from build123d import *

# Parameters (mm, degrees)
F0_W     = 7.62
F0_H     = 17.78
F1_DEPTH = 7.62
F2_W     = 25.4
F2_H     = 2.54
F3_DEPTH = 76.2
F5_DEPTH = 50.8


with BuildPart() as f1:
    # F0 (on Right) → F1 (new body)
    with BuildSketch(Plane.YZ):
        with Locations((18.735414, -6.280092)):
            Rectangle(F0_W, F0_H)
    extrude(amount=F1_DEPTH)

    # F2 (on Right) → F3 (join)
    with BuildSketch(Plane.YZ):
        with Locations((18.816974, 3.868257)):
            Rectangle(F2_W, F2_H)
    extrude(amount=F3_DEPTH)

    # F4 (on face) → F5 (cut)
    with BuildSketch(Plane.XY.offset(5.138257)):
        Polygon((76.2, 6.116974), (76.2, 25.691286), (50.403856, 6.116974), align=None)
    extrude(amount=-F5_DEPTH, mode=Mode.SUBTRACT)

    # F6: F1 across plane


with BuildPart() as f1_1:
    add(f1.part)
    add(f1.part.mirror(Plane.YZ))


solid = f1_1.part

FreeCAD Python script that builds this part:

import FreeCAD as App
import Part
import Sketcher

V = App.Vector
Q = App.Units.Quantity

doc = App.newDocument("Part")
body = doc.addObject("PartDesign::Body", "Body")

# Sketch on YZ plane
sketch1 = body.newObject("Sketcher::SketchObject", "Sketch")
sketch1.AttachmentSupport = (doc.getObject("YZ_Plane"), [""])
sketch1.MapMode = "FlatFace"
sketch1.addGeometry(Part.LineSegment(V(15, 3, 0), V(15, -15, 0)), False)
sketch1.addGeometry(Part.LineSegment(V(15, -15, 0), V(23, -15, 0)), False)
sketch1.addGeometry(Part.LineSegment(V(23, -15, 0), V(23, 3, 0)), False)
sketch1.addGeometry(Part.LineSegment(V(23, 3, 0), V(15, 3, 0)), False)
sketch1.addConstraint(Sketcher.Constraint("Coincident", 0, 2, 1, 1))
sketch1.addConstraint(Sketcher.Constraint("Coincident", 1, 2, 2, 1))
sketch1.addConstraint(Sketcher.Constraint("Coincident", 2, 2, 3, 1))
sketch1.addConstraint(Sketcher.Constraint("Coincident", 3, 2, 0, 1))
sketch1.addConstraint(Sketcher.Constraint("Vertical", 0))
sketch1.addConstraint(Sketcher.Constraint("Horizontal", 1))
sketch1.addConstraint(Sketcher.Constraint("Vertical", 2))
sketch1.addConstraint(Sketcher.Constraint("Horizontal", 3))
sketch1.addConstraint(Sketcher.Constraint("DistanceX", 1, 1, 1, 2, Q("0.3 in")))
sketch1.addConstraint(Sketcher.Constraint("DistanceY", 0, 2, 0, 1, Q("0.7 in")))
sketch1.addConstraint(Sketcher.Constraint("DistanceX", -1, 1, 0, 2, Q("14.925414 mm")))
sketch1.addConstraint(Sketcher.Constraint("DistanceY", 0, 2, -1, 1, Q("15.170092 mm")))
pad1 = body.newObject("PartDesign::Pad", "Pad")
pad1.Profile = sketch1
pad1.Length = Q("0.3 in")

# Sketch on YZ plane
sketch2 = body.newObject("Sketcher::SketchObject", "Sketch001")
sketch2.AttachmentSupport = (doc.getObject("YZ_Plane"), [""])
sketch2.MapMode = "FlatFace"
sketch2.addGeometry(Part.LineSegment(V(6.1, 5.1, 0), V(6.1, 2.6, 0)), False)
sketch2.addGeometry(Part.LineSegment(V(6.1, 2.6, 0), V(31.5, 2.6, 0)), False)
sketch2.addGeometry(Part.LineSegment(V(31.5, 2.6, 0), V(31.5, 5.1, 0)), False)
sketch2.addGeometry(Part.LineSegment(V(31.5, 5.1, 0), V(6.1, 5.1, 0)), False)
sketch2.addConstraint(Sketcher.Constraint("Coincident", 0, 2, 1, 1))
sketch2.addConstraint(Sketcher.Constraint("Coincident", 1, 2, 2, 1))
sketch2.addConstraint(Sketcher.Constraint("Coincident", 2, 2, 3, 1))
sketch2.addConstraint(Sketcher.Constraint("Coincident", 3, 2, 0, 1))
sketch2.addConstraint(Sketcher.Constraint("Vertical", 0))
sketch2.addConstraint(Sketcher.Constraint("Horizontal", 1))
sketch2.addConstraint(Sketcher.Constraint("Vertical", 2))
sketch2.addConstraint(Sketcher.Constraint("Horizontal", 3))
sketch2.addConstraint(Sketcher.Constraint("DistanceX", 1, 1, 1, 2, Q("1 in")))
sketch2.addConstraint(Sketcher.Constraint("DistanceY", 0, 2, 0, 1, Q("0.1 in")))
sketch2.addConstraint(Sketcher.Constraint("DistanceX", -1, 1, 0, 2, Q("6.116974 mm")))
sketch2.addConstraint(Sketcher.Constraint("DistanceY", -1, 1, 0, 2, Q("2.598257 mm")))
pad2 = body.newObject("PartDesign::Pad", "Pad001")
pad2.Profile = sketch2
pad2.Length = Q("3 in")

# Sketch on XY plane
sketch3 = body.newObject("Sketcher::SketchObject", "Sketch002")
sketch3.AttachmentSupport = (doc.getObject("XY_Plane"), [""])
sketch3.MapMode = "FlatFace"
sketch3.AttachmentOffset = App.Placement(V(0, 0, 5.138257), App.Rotation())
sketch3.addGeometry(Part.LineSegment(V(76, 6, 0), V(76, 26, 0)), False)
sketch3.addGeometry(Part.LineSegment(V(76, 26, 0), V(50, 6, 0)), False)
sketch3.addGeometry(Part.LineSegment(V(50, 6, 0), V(76, 6, 0)), False)
sketch3.addConstraint(Sketcher.Constraint("Coincident", 0, 2, 1, 1))
sketch3.addConstraint(Sketcher.Constraint("Coincident", 1, 2, 2, 1))
sketch3.addConstraint(Sketcher.Constraint("Coincident", 2, 2, 0, 1))
sketch3.addConstraint(Sketcher.Constraint("Vertical", 0))
sketch3.addConstraint(Sketcher.Constraint("Horizontal", 2))
sketch3.addConstraint(Sketcher.Constraint("DistanceX", -1, 1, 0, 2, Q("3 in")))
sketch3.addConstraint(Sketcher.Constraint("DistanceX", 2, 1, 2, 2, Q("25.796144 mm")))
sketch3.addConstraint(Sketcher.Constraint("DistanceY", 0, 1, 0, 2, Q("19.574312 mm")))
sketch3.addConstraint(Sketcher.Constraint("DistanceY", -1, 1, 0, 2, Q("25.691286 mm")))
pocket1 = body.newObject("PartDesign::Pocket", "Pocket")
pocket1.Profile = sketch3
pocket1.Length = Q("2 in")
body2 = doc.addObject("PartDesign::Body", "Body001")
doc.recompute()

body2.BaseFeature = body
doc.recompute()

mirroring = doc.addObject("Part::Mirroring", "Mirroring")
mirroring.Source = body
mirroring.Base = V(0, 0, 0)
mirroring.Normal = V(1, 0, 0)
body3 = doc.addObject("PartDesign::Body", "Body002")
body3.BaseFeature = mirroring
boolean = body2.newObject("PartDesign::Boolean", "Boolean")
boolean.Type = "Fuse"
boolean.addObjects([body3])
doc.recompute()
mirroring.Visibility = False

doc.recompute()
